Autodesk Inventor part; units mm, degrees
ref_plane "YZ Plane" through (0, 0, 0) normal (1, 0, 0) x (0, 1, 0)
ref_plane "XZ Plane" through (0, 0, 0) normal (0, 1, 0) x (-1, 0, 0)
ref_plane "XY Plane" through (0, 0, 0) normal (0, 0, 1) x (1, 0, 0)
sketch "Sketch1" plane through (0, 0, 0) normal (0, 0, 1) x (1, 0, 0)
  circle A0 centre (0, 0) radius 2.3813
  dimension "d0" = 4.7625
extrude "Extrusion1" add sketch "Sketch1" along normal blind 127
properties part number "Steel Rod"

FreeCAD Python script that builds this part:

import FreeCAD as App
import Part
import Sketcher
from FreeCAD import Vector
Q = App.Units.Quantity

doc = App.newDocument("Part")
body = doc.addObject("PartDesign::Body", "Body")

# Sketch on XY plane
sketch1 = body.newObject("Sketcher::SketchObject", "Sketch")
sketch1.AttachmentSupport = (doc.getObject("XY_Plane"), [""])
sketch1.MapMode = "FlatFace"
sketch1.addGeometry(Part.Circle(Vector(0, 0, 0), Vector(0, 0, 1), 2.4), False)
sketch1.addConstraint([
    Sketcher.Constraint("Coincident", 0, 3, -1, 1),
    Sketcher.Constraint("Diameter", 0, Q("0.1875 in")),
])
pad1 = body.newObject("PartDesign::Pad", "Pad")
pad1.Profile = sketch1
pad1.Length = Q("5 in")

doc.recompute()
